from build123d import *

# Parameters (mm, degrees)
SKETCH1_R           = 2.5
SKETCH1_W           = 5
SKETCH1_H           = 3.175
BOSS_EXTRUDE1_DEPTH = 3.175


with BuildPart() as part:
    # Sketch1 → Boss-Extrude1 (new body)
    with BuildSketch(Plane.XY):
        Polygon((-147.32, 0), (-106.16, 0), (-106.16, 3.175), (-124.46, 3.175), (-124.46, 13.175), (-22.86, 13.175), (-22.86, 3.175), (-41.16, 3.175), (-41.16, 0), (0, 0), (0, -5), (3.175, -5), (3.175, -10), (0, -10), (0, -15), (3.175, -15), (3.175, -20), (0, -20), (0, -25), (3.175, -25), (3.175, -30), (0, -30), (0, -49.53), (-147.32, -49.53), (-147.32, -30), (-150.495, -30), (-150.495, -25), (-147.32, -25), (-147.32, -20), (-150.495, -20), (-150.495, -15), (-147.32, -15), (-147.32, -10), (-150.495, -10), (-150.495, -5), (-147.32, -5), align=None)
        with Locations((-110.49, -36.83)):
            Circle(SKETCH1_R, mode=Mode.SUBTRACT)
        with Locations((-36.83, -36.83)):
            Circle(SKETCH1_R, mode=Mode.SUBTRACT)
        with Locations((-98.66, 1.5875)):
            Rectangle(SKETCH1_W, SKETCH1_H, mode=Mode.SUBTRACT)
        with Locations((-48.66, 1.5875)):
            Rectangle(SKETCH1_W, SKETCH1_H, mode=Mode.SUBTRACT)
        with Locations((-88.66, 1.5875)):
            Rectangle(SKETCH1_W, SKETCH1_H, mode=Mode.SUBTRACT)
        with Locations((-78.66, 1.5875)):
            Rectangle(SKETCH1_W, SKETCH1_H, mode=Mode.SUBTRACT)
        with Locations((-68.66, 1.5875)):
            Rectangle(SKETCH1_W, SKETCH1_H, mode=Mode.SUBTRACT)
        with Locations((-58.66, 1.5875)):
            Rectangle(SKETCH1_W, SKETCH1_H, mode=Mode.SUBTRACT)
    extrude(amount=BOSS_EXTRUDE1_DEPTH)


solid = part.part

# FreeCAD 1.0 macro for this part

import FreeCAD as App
import Part
import Sketcher

V = App.Vector
Q = App.Units.Quantity

doc = App.newDocument("Part")
body = doc.addObject("PartDesign::Body", "Body")

# Sketch on XY plane
sketch1 = body.newObject("Sketcher::SketchObject", "Sketch")
sketch1.AttachmentSupport = (doc.getObject("XY_Plane"), [""])
sketch1.MapMode = "FlatFace"
sketch1.addGeometry(Part.LineSegment(V(-106.16, 0, 0), V(-147.32, 0, 0)), False)
sketch1.addGeometry(Part.LineSegment(V(-147.32, 0, 0), V(-147.32, -5, 0)), False)
sketch1.addGeometry(Part.LineSegment(V(-147.32, -5, 0), V(-150.495, -5, 0)), False)
sketch1.addGeometry(Part.LineSegment(V(-150.495, -5, 0), V(-150.495, -10, 0)), False)
sketch1.addGeometry(Part.LineSegment(V(-150.495, -10, 0), V(-147.32, -10, 0)), False)
sketch1.addGeometry(Part.LineSegment(V(-147.32, -10, 0), V(-147.32, -15, 0)), False)
sketch1.addGeometry(Part.LineSegment(V(-147.32, -15, 0), V(-150.495, -15, 0)), False)
sketch1.addGeometry(Part.LineSegment(V(-150.495, -15, 0), V(-150.495, -20, 0)), False)
sketch1.addGeometry(Part.LineSegment(V(-150.495, -20, 0), V(-147.32, -20, 0)), False)
sketch1.addGeometry(Part.LineSegment(V(-147.32, -20, 0), V(-147.32, -25, 0)), False)
sketch1.addGeometry(Part.LineSegment(V(-147.32, -25, 0), V(-150.495, -25, 0)), False)
sketch1.addGeometry(Part.LineSegment(V(-150.495, -25, 0), V(-150.495, -30, 0)), False)
sketch1.addGeometry(Part.LineSegment(V(-150.495, -30, 0), V(-147.32, -30, 0)), False)
sketch1.addGeometry(Part.LineSegment(V(-147.32, -30, 0), V(-147.32, -49.53, 0)), False)
sketch1.addGeometry(Part.LineSegment(V(-147.32, -49.53, 0), V(0, -49.53, 0)), False)
sketch1.addGeometry(Part.LineSegment(V(0, -49.53, 0), V(0, -30, 0)), False)
sketch1.addGeometry(Part.LineSegment(V(0, -30, 0), V(3.175, -30, 0)), False)
sketch1.addGeometry(Part.LineSegment(V(3.175, -30, 0), V(3.175, -25, 0)), False)
sketch1.addGeometry(Part.LineSegment(V(3.175, -25, 0), V(0, -25, 0)), False)
sketch1.addGeometry(Part.LineSegment(V(0, -25, 0), V(0, -20, 0)), False)
sketch1.addGeometry(Part.LineSegment(V(0, -20, 0), V(3.175, -20, 0)), False)
sketch1.addGeometry(Part.LineSegment(V(3.175, -20, 0), V(3.175, -15, 0)), False)
sketch1.addGeometry(Part.LineSegment(V(3.175, -15, 0), V(0, -15, 0)), False)
sketch1.addGeometry(Part.LineSegment(V(0, -15, 0), V(0, -10, 0)), False)
sketch1.addGeometry(Part.LineSegment(V(0, -10, 0), V(3.175, -10, 0)), False)
sketch1.addGeometry(Part.LineSegment(V(3.175, -10, 0), V(3.175, -5, 0)), False)
sketch1.addGeometry(Part.LineSegment(V(3.175, -5, 0), V(0, -5, 0)), False)
sketch1.addGeometry(Part.LineSegment(V(0, -5, 0), V(0, 0, 0)), False)
sketch1.addGeometry(Part.LineSegment(V(0, 0, 0), V(-41.16, 0, 0)), False)
sketch1.addGeometry(Part.LineSegment(V(-41.16, 0, 0), V(-41.16, 3.175, 0)), False)
sketch1.addGeometry(Part.LineSegment(V(-41.16, 3.175, 0), V(-22.86, 3.175, 0)), False)
sketch1.addGeometry(Part.LineSegment(V(-22.86, 3.175, 0), V(-22.86, 13.175, 0)), False)
sketch1.addGeometry(Part.LineSegment(V(-22.86, 13.175, 0), V(-124.46, 13.175, 0)), False)
sketch1.addGeometry(Part.LineSegment(V(-124.46, 13.175, 0), V(-124.46, 3.175, 0)), False)
sketch1.addGeometry(Part.LineSegment(V(-124.46, 3.175, 0), V(-106.16, 3.175, 0)), False)
sketch1.addGeometry(Part.LineSegment(V(-106.16, 3.175, 0), V(-106.16, 0, 0)), False)
sketch1.addGeometry(Part.Circle(V(-36.83, -36.83, 0), V(0, 0, 1), 2.5), False)
sketch1.addGeometry(Part.Circle(V(-110.49, -36.83, 0), V(0, 0, 1), 2.5), False)
sketch1.addGeometry(Part.LineSegment(V(-51.16, 0, 0), V(-51.16, 3.175, 0)), False)
sketch1.addGeometry(Part.LineSegment(V(-51.16, 3.175, 0), V(-46.16, 3.175, 0)), False)
sketch1.addGeometry(Part.LineSegment(V(-46.16, 3.175, 0), V(-46.16, 0, 0)), False)
sketch1.addGeometry(Part.LineSegment(V(-46.16, 0, 0), V(-51.16, 0, 0)), False)
sketch1.addGeometry(Part.LineSegment(V(-61.16, 0, 0), V(-61.16, 3.175, 0)), False)
sketch1.addGeometry(Part.LineSegment(V(-61.16, 3.175, 0), V(-56.16, 3.175, 0)), False)
sketch1.addGeometry(Part.LineSegment(V(-56.16, 3.175, 0), V(-56.16, 0, 0)), False)
sketch1.addGeometry(Part.LineSegment(V(-56.16, 0, 0), V(-61.16, 0, 0)), False)
sketch1.addGeometry(Part.LineSegment(V(-71.16, 0, 0), V(-71.16, 3.175, 0)), False)
sketch1.addGeometry(Part.LineSegment(V(-71.16, 3.175, 0), V(-66.16, 3.175, 0)), False)
sketch1.addGeometry(Part.LineSegment(V(-66.16, 3.175, 0), V(-66.16, 0, 0)), False)
sketch1.addGeometry(Part.LineSegment(V(-66.16, 0, 0), V(-71.16, 0, 0)), False)
sketch1.addGeometry(Part.LineSegment(V(-81.16, 0, 0), V(-81.16, 3.175, 0)), False)
sketch1.addGeometry(Part.LineSegment(V(-81.16, 3.175, 0), V(-76.16, 3.175, 0)), False)
sketch1.addGeometry(Part.LineSegment(V(-76.16, 3.175, 0), V(-76.16, 0, 0)), False)
sketch1.addGeometry(Part.LineSegment(V(-76.16, 0, 0), V(-81.16, 0, 0)), False)
sketch1.addGeometry(Part.LineSegment(V(-91.16, 0, 0), V(-91.16, 3.175, 0)), False)
sketch1.addGeometry(Part.LineSegment(V(-91.16, 3.175, 0), V(-86.16, 3.175, 0)), False)
sketch1.addGeometry(Part.LineSegment(V(-86.16, 3.175, 0), V(-86.16, 0, 0)), False)
sketch1.addGeometry(Part.LineSegment(V(-86.16, 0, 0), V(-91.16, 0, 0)), False)
sketch1.addGeometry(Part.LineSegment(V(-101.16, 0, 0), V(-101.16, 3.175, 0)), False)
sketch1.addGeometry(Part.LineSegment(V(-101.16, 3.175, 0), V(-96.16, 3.175, 0)), False)
sketch1.addGeometry(Part.LineSegment(V(-96.16, 3.175, 0), V(-96.16, 0, 0)), False)
sketch1.addGeometry(Part.LineSegment(V(-96.16, 0, 0), V(-101.16, 0, 0)), False)
sketch1.addConstraint(Sketcher.Constraint("Coincident", 0, 2, 1, 1))
sketch1.addConstraint(Sketcher.Constraint("Coincident", 1, 2, 2, 1))
sketch1.addConstraint(Sketcher.Constraint("Coincident", 2, 2, 3, 1))
sketch1.addConstraint(Sketcher.Constraint("Coincident", 3, 2, 4, 1))
sketch1.addConstraint(Sketcher.Constraint("Coincident", 4, 2, 5, 1))
sketch1.addConstraint(Sketcher.Constraint("Coincident", 5, 2, 6, 1))
sketch1.addConstraint(Sketcher.Constraint("Coincident", 6, 2, 7, 1))
sketch1.addConstraint(Sketcher.Constraint("Coincident", 7, 2, 8, 1))
sketch1.addConstraint(Sketcher.Constraint("Coincident", 8, 2, 9, 1))
sketch1.addConstraint(Sketcher.Constraint("Coincident", 9, 2, 10, 1))
sketch1.addConstraint(Sketcher.Constraint("Coincident", 10, 2, 11, 1))
sketch1.addConstraint(Sketcher.Constraint("Coincident", 11, 2, 12, 1))
sketch1.addConstraint(Sketcher.Constraint("Coincident", 12, 2, 13, 1))
sketch1.addConstraint(Sketcher.Constraint("Coincident", 13, 2, 14, 1))
sketch1.addConstraint(Sketcher.Constraint("Coincident", 14, 2, 15, 1))
sketch1.addConstraint(Sketcher.Constraint("Coincident", 15, 2, 16, 1))
sketch1.addConstraint(Sketcher.Constraint("Coincident", 16, 2, 17, 1))
sketch1.addConstraint(Sketcher.Constraint("Coincident", 17, 2, 18, 1))
sketch1.addConstraint(Sketcher.Constraint("Coincident", 18, 2, 19, 1))
sketch1.addConstraint(Sketcher.Constraint("Coincident", 19, 2, 20, 1))
sketch1.addConstraint(Sketcher.Constraint("Coincident", 20, 2, 21, 1))
sketch1.addConstraint(Sketcher.Constraint("Coincident", 21, 2, 22, 1))
sketch1.addConstraint(Sketcher.Constraint("Coincident", 22, 2, 23, 1))
sketch1.addConstraint(Sketcher.Constraint("Coincident", 23, 2, 24, 1))
sketch1.addConstraint(Sketcher.Constraint("Coincident", 24, 2, 25, 1))
sketch1.addConstraint(Sketcher.Constraint("Coincident", 25, 2, 26, 1))
sketch1.addConstraint(Sketcher.Constraint("Coincident", 26, 2, 27, 1))
sketch1.addConstraint(Sketcher.Constraint("Coincident", 27, 2, 28, 1))
sketch1.addConstraint(Sketcher.Constraint("Coincident", 28, 2, 29, 1))
sketch1.addConstraint(Sketcher.Constraint("Coincident", 29, 2, 30, 1))
sketch1.addConstraint(Sketcher.Constraint("Coincident", 30, 2, 31, 1))
sketch1.addConstraint(Sketcher.Constraint("Coincident", 31, 2, 32, 1))
sketch1.addConstraint(Sketcher.Constraint("Coincident", 32, 2, 33, 1))
sketch1.addConstraint(Sketcher.Constraint("Coincident", 33, 2, 34, 1))
sketch1.addConstraint(Sketcher.Constraint("Coincident", 34, 2, 35, 1))
sketch1.addConstraint(Sketcher.Constraint("Coincident", 35, 2, 0, 1))
sketch1.addConstraint(Sketcher.Constraint("Coincident", 38, 2, 39, 1))
sketch1.addConstraint(Sketcher.Constraint("Coincident", 39, 2, 40, 1))
sketch1.addConstraint(Sketcher.Constraint("Coincident", 40, 2, 41, 1))
sketch1.addConstraint(Sketcher.Constraint("Coincident", 41, 2, 38, 1))
sketch1.addConstraint(Sketcher.Constraint("Coincident", 42, 2, 43, 1))
sketch1.addConstraint(Sketcher.Constraint("Coincident", 43, 2, 44, 1))
sketch1.addConstraint(Sketcher.Constraint("Coincident", 44, 2, 45, 1))
sketch1.addConstraint(Sketcher.Constraint("Coincident", 45, 2, 42, 1))
sketch1.addConstraint(Sketcher.Constraint("Coincident", 46, 2, 47, 1))
sketch1.addConstraint(Sketcher.Constraint("Coincident", 47, 2, 48, 1))
sketch1.addConstraint(Sketcher.Constraint("Coincident", 48, 2, 49, 1))
sketch1.addConstraint(Sketcher.Constraint("Coincident", 49, 2, 46, 1))
sketch1.addConstraint(Sketcher.Constraint("Coincident", 50, 2, 51, 1))
sketch1.addConstraint(Sketcher.Constraint("Coincident", 51, 2, 52, 1))
sketch1.addConstraint(Sketcher.Constraint("Coincident", 52, 2, 53, 1))
sketch1.addConstraint(Sketcher.Constraint("Coincident", 53, 2, 50, 1))
sketch1.addConstraint(Sketcher.Constraint("Coincident", 54, 2, 55, 1))
sketch1.addConstraint(Sketcher.Constraint("Coincident", 55, 2, 56, 1))
sketch1.addConstraint(Sketcher.Constraint("Coincident", 56, 2, 57, 1))
sketch1.addConstraint(Sketcher.Constraint("Coincident", 57, 2, 54, 1))
sketch1.addConstraint(Sketcher.Constraint("Coincident", 58, 2, 59, 1))
sketch1.addConstraint(Sketcher.Constraint("Coincident", 59, 2, 60, 1))
sketch1.addConstraint(Sketcher.Constraint("Coincident", 60, 2, 61, 1))
sketch1.addConstraint(Sketcher.Constraint("Coincident", 61, 2, 58, 1))
sketch1.addConstraint(Sketcher.Constraint("Horizontal", 0))
sketch1.addConstraint(Sketcher.Constraint("Vertical", 1))
sketch1.addConstraint(Sketcher.Constraint("Horizontal", 2))
sketch1.addConstraint(Sketcher.Constraint("Vertical", 3))
sketch1.addConstraint(Sketcher.Constraint("Horizontal", 4))
sketch1.addConstraint(Sketcher.Constraint("Vertical", 5))
sketch1.addConstraint(Sketcher.Constraint("Horizontal", 6))
sketch1.addConstraint(Sketcher.Constraint("Vertical", 7))
sketch1.addConstraint(Sketcher.Constraint("Horizontal", 8))
sketch1.addConstraint(Sketcher.Constraint("Vertical", 9))
sketch1.addConstraint(Sketcher.Constraint("Horizontal", 10))
sketch1.addConstraint(Sketcher.Constraint("Vertical", 11))
sketch1.addConstraint(Sketcher.Constraint("Horizontal", 12))
sketch1.addConstraint(Sketcher.Constraint("Vertical", 13))
sketch1.addConstraint(Sketcher.Constraint("Horizontal", 14))
sketch1.addConstraint(Sketcher.Constraint("Vertical", 15))
sketch1.addConstraint(Sketcher.Constraint("Horizontal", 16))
sketch1.addConstraint(Sketcher.Constraint("Vertical", 17))
sketch1.addConstraint(Sketcher.Constraint("Horizontal", 18))
sketch1.addConstraint(Sketcher.Constraint("Vertical", 19))
sketch1.addConstraint(Sketcher.Constraint("Horizontal", 20))
sketch1.addConstraint(Sketcher.Constraint("Vertical", 21))
sketch1.addConstraint(Sketcher.Constraint("Horizontal", 22))
sketch1.addConstraint(Sketcher.Constraint("Vertical", 23))
sketch1.addConstraint(Sketcher.Constraint("Horizontal", 24))
sketch1.addConstraint(Sketcher.Constraint("Vertical", 25))
sketch1.addConstraint(Sketcher.Constraint("Horizontal", 26))
sketch1.addConstraint(Sketcher.Constraint("Vertical", 27))
sketch1.addConstraint(Sketcher.Constraint("Horizontal", 28))
sketch1.addConstraint(Sketcher.Constraint("Vertical", 29))
sketch1.addConstraint(Sketcher.Constraint("Horizontal", 30))
sketch1.addConstraint(Sketcher.Constraint("Vertical", 31))
sketch1.addConstraint(Sketcher.Constraint("Horizontal", 32))
sketch1.addConstraint(Sketcher.Constraint("Vertical", 33))
sketch1.addConstraint(Sketcher.Constraint("Horizontal", 34))
sketch1.addConstraint(Sketcher.Constraint("Vertical", 35))
sketch1.addConstraint(Sketcher.Constraint("Vertical", 38))
sketch1.addConstraint(Sketcher.Constraint("Horizontal", 39))
sketch1.addConstraint(Sketcher.Constraint("Vertical", 40))
sketch1.addConstraint(Sketcher.Constraint("Horizontal", 41))
sketch1.addConstraint(Sketcher.Constraint("Vertical", 42))
sketch1.addConstraint(Sketcher.Constraint("Horizontal", 43))
sketch1.addConstraint(Sketcher.Constraint("Vertical", 44))
sketch1.addConstraint(Sketcher.Constraint("Horizontal", 45))
sketch1.addConstraint(Sketcher.Constraint("Vertical", 46))
sketch1.addConstraint(Sketcher.Constraint("Horizontal", 47))
sketch1.addConstraint(Sketcher.Constraint("Vertical", 48))
sketch1.addConstraint(Sketcher.Constraint("Horizontal", 49))
sketch1.addConstraint(Sketcher.Constraint("Vertical", 50))
sketch1.addConstraint(Sketcher.Constraint("Horizontal", 51))
sketch1.addConstraint(Sketcher.Constraint("Vertical", 52))
sketch1.addConstraint(Sketcher.Constraint("Horizontal", 53))
sketch1.addConstraint(Sketcher.Constraint("Vertical", 54))
sketch1.addConstraint(Sketcher.Constraint("Horizontal", 55))
sketch1.addConstraint(Sketcher.Constraint("Vertical", 56))
sketch1.addConstraint(Sketcher.Constraint("Horizontal", 57))
sketch1.addConstraint(Sketcher.Constraint("Vertical", 58))
sketch1.addConstraint(Sketcher.Constraint("Horizontal", 59))
sketch1.addConstraint(Sketcher.Constraint("Vertical", 60))
sketch1.addConstraint(Sketcher.Constraint("Horizontal", 61))
sketch1.addConstraint(Sketcher.Constraint("Coincident", 27, 2, -1, 1))
sketch1.addConstraint(Sketcher.Constraint("Equal", 36, 37))
sketch1.addConstraint(Sketcher.Constraint("PointOnObject", 0, 2, -1))
sketch1.addConstraint(Sketcher.Constraint("PointOnObject", 14, 2, -2))
sketch1.addConstraint(Sketcher.Constraint("PointOnObject", 18, 2, -2))
sketch1.addConstraint(Sketcher.Constraint("PointOnObject", 22, 2, -2))
sketch1.addConstraint(Sketcher.Constraint("PointOnObject", 40, 2, -1))
sketch1.addConstraint(Sketcher.Constraint("PointOnObject", 44, 2, -1))
sketch1.addConstraint(Sketcher.Constraint("PointOnObject", 48, 2, -1))
sketch1.addConstraint(Sketcher.Constraint("PointOnObject", 52, 2, -1))
sketch1.addConstraint(Sketcher.Constraint("PointOnObject", 56, 2, -1))
sketch1.addConstraint(Sketcher.Constraint("PointOnObject", 60, 2, -1))
sketch1.addConstraint(Sketcher.Constraint("Horizontal", 36, 3, 37, 3))
sketch1.addConstraint(Sketcher.Constraint("Horizontal", 12, 2, 15, 2))
sketch1.addConstraint(Sketcher.Constraint("Horizontal", 10, 2, 17, 2))
sketch1.addConstraint(Sketcher.Constraint("Horizontal", 8, 2, 19, 2))
sketch1.addConstraint(Sketcher.Constraint("Horizontal", 6, 2, 21, 2))
sketch1.addConstraint(Sketcher.Constraint("Horizontal", 4, 2, 23, 2))
sketch1.addConstraint(Sketcher.Constraint("Horizontal", 2, 2, 25, 2))
sketch1.addConstraint(Sketcher.Constraint("Horizontal", 30, 2, 33, 2))
sketch1.addConstraint(Sketcher.Constraint("Horizontal", 34, 2, 38, 2))
sketch1.addConstraint(Sketcher.Constraint("Horizontal", 39, 2, 42, 2))
sketch1.addConstraint(Sketcher.Constraint("Horizontal", 43, 2, 46, 2))
sketch1.addConstraint(Sketcher.Constraint("Horizontal", 47, 2, 50, 2))
sketch1.addConstraint(Sketcher.Constraint("Horizontal", 51, 2, 54, 2))
sketch1.addConstraint(Sketcher.Constraint("Horizontal", 55, 2, 58, 2))
sketch1.addConstraint(Sketcher.Constraint("Vertical", 1, 2, 4, 2))
sketch1.addConstraint(Sketcher.Constraint("Vertical", 3, 2, 6, 2))
sketch1.addConstraint(Sketcher.Constraint("Vertical", 5, 2, 8, 2))
sketch1.addConstraint(Sketcher.Constraint("Vertical", 7, 2, 10, 2))
sketch1.addConstraint(Sketcher.Constraint("Vertical", 9, 2, 12, 2))
sketch1.addConstraint(Sketcher.Constraint("Vertical", 17, 2, 20, 2))
sketch1.addConstraint(Sketcher.Constraint("Vertical", 21, 2, 24, 2))
sketch1.addConstraint(Sketcher.Constraint("Equal", 12, 16))
sketch1.addConstraint(Sketcher.Constraint("Equal", 0, 28))
sketch1.addConstraint(Sketcher.Constraint("Equal", 30, 34))
sketch1.addConstraint(Sketcher.Constraint("Equal", 41, 43))
sketch1.addConstraint(Sketcher.Constraint("Equal", 45, 47))
sketch1.addConstraint(Sketcher.Constraint("Equal", 49, 51))
sketch1.addConstraint(Sketcher.Constraint("Equal", 53, 55))
sketch1.addConstraint(Sketcher.Constraint("Equal", 57, 59))
sketch1.addConstraint(Sketcher.Constraint("Equal", 61, 1))
sketch1.addConstraint(Sketcher.Constraint("Equal", 1, 3))
sketch1.addConstraint(Sketcher.Constraint("Equal", 3, 5))
sketch1.addConstraint(Sketcher.Constraint("Equal", 5, 7))
sketch1.addConstraint(Sketcher.Constraint("Equal", 7, 9))
sketch1.addConstraint(Sketcher.Constraint("Equal", 9, 11))
sketch1.addConstraint(Sketcher.Constraint("Equal", 26, 29))
sketch1.addConstraint(Sketcher.Constraint("Diameter", 36, Q("5 mm")))
sketch1.addConstraint(Sketcher.Constraint("DistanceX", 39, 1, 39, 2, Q("5 mm")))
sketch1.addConstraint(Sketcher.Constraint("DistanceY", 31, 1, 31, 2, Q("10 mm")))
sketch1.addConstraint(Sketcher.Constraint("DistanceX", 30, 1, 30, 2, Q("18.3 mm")))
sketch1.addConstraint(Sketcher.Constraint("DistanceX", 32, 2, 32, 1, Q("101.6 mm")))
sketch1.addConstraint(Sketcher.Constraint("DistanceX", 0, 2, 0, 1, Q("41.16 mm")))
sketch1.addConstraint(Sketcher.Constraint("DistanceY", 13, 2, 13, 1, Q("19.53 mm")))
sketch1.addConstraint(Sketcher.Constraint("DistanceX", 2, 2, 2, 1, Q("3.175 mm")))
sketch1.addConstraint(Sketcher.Constraint("DistanceX", 36, 3, -1, 1, Q("36.83 mm")))
sketch1.addConstraint(Sketcher.Constraint("DistanceY", 36, 3, -1, 1, Q("36.83 mm")))
sketch1.addConstraint(Sketcher.Constraint("DistanceX", 37, 3, -1, 1, Q("110.49 mm")))
sketch1.addConstraint(Sketcher.Constraint("DistanceX", 38, 2, -1, 1, Q("51.16 mm")))
sketch1.addConstraint(Sketcher.Constraint("DistanceX", 42, 2, -1, 1, Q("61.16 mm")))
sketch1.addConstraint(Sketcher.Constraint("DistanceX", 46, 2, -1, 1, Q("71.16 mm")))
sketch1.addConstraint(Sketcher.Constraint("DistanceX", 50, 2, -1, 1, Q("81.16 mm")))
sketch1.addConstraint(Sketcher.Constraint("DistanceX", 54, 2, -1, 1, Q("91.16 mm")))
sketch1.addConstraint(Sketcher.Constraint("DistanceX", 58, 2, -1, 1, Q("101.16 mm")))
pad1 = body.newObject("PartDesign::Pad", "Pad")
pad1.Profile = sketch1
pad1.Length = 3.175

doc.recompute()
